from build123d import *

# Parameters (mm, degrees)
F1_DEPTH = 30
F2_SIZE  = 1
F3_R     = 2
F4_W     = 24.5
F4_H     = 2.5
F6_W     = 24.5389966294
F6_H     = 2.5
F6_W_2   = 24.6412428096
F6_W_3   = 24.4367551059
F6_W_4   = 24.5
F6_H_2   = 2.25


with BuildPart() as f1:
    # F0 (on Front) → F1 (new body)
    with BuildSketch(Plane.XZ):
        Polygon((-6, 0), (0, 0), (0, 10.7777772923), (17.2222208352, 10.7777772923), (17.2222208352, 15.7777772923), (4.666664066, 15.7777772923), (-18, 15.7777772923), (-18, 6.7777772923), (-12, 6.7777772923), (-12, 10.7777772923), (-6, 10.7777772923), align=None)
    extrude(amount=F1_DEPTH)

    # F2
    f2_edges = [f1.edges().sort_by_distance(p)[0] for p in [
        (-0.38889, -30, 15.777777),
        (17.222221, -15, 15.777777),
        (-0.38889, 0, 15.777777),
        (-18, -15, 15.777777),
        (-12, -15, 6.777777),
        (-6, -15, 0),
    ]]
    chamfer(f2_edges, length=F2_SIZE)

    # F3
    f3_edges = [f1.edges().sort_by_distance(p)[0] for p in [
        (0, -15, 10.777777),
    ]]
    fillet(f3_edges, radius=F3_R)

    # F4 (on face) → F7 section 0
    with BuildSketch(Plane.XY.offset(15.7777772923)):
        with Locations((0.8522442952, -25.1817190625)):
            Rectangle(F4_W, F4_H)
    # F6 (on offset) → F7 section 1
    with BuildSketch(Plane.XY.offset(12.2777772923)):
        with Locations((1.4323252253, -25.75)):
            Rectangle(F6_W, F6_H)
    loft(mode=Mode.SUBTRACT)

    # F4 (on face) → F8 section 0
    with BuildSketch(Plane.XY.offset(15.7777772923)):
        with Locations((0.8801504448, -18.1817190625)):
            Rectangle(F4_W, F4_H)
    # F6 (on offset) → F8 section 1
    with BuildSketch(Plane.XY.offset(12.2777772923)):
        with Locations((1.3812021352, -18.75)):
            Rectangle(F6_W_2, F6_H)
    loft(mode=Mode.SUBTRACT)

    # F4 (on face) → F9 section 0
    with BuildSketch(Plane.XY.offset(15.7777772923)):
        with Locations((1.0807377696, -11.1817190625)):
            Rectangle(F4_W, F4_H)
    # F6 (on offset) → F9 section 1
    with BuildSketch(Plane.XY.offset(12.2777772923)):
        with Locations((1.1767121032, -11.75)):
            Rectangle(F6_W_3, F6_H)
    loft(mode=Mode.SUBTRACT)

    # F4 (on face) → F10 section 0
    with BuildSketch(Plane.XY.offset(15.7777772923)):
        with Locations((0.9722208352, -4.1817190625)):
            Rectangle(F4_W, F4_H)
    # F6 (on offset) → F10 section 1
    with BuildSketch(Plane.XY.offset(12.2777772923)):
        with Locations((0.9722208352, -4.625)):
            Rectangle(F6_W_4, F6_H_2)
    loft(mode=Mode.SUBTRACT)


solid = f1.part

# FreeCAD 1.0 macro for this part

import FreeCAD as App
import Part
import Sketcher
Q = App.Units.Quantity


def edges_at(feature, points):
    """Names of the edges that pass closest to the given points."""
    edges = feature.Shape.Edges
    near = lambda p: min(range(len(edges)), key=lambda i: edges[i].distToShape(Part.Vertex(*p))[0])
    return sorted({f"Edge{near(p) + 1}" for p in points})

doc = App.newDocument("Part")
body = doc.addObject("PartDesign::Body", "Body")

sketch1 = body.newObject("Sketcher::SketchObject", "Sketch")
sketch1.AttachmentSupport = (doc.getObject("XZ_Plane"), [""])
sketch1.MapMode = "FlatFace"
sketch1.addGeometry(Part.LineSegment(App.Vector(-6, 0, 0), App.Vector(0, 0, 0)), False)
sketch1.addGeometry(Part.LineSegment(App.Vector(0, 0, 0), App.Vector(0, 10.8, 0)), False)
sketch1.addGeometry(Part.LineSegment(App.Vector(0, 10.8, 0), App.Vector(17.2, 10.8, 0)), False)
sketch1.addGeometry(Part.LineSegment(App.Vector(17.2, 10.8, 0), App.Vector(17.2, 15.8, 0)), False)
sketch1.addGeometry(Part.LineSegment(App.Vector(17.2, 15.8, 0), App.Vector(-18, 15.8, 0)), False)
sketch1.addGeometry(Part.LineSegment(App.Vector(-18, 15.8, 0), App.Vector(-18, 6.8, 0)), False)
sketch1.addGeometry(Part.LineSegment(App.Vector(-18, 6.8, 0), App.Vector(-12, 6.8, 0)), False)
sketch1.addGeometry(Part.LineSegment(App.Vector(-12, 6.8, 0), App.Vector(-12, 10.8, 0)), False)
sketch1.addGeometry(Part.LineSegment(App.Vector(-12, 10.8, 0), App.Vector(-6, 10.8, 0)), False)
sketch1.addGeometry(Part.LineSegment(App.Vector(-6, 10.8, 0), App.Vector(-6, 0, 0)), False)
sketch1.addConstraint(Sketcher.Constraint("Coincident", 0, 2, 1, 1))
sketch1.addConstraint(Sketcher.Constraint("Coincident", 1, 2, 2, 1))
sketch1.addConstraint(Sketcher.Constraint("Coincident", 2, 2, 3, 1))
sketch1.addConstraint(Sketcher.Constraint("Coincident", 3, 2, 4, 1))
sketch1.addConstraint(Sketcher.Constraint("Coincident", 4, 2, 5, 1))
sketch1.addConstraint(Sketcher.Constraint("Coincident", 5, 2, 6, 1))
sketch1.addConstraint(Sketcher.Constraint("Coincident", 6, 2, 7, 1))
sketch1.addConstraint(Sketcher.Constraint("Coincident", 7, 2, 8, 1))
sketch1.addConstraint(Sketcher.Constraint("Coincident", 8, 2, 9, 1))
sketch1.addConstraint(Sketcher.Constraint("Coincident", 9, 2, 0, 1))
sketch1.addConstraint(Sketcher.Constraint("Horizontal", 0))
sketch1.addConstraint(Sketcher.Constraint("Vertical", 1))
sketch1.addConstraint(Sketcher.Constraint("Horizontal", 2))
sketch1.addConstraint(Sketcher.Constraint("Vertical", 3))
sketch1.addConstraint(Sketcher.Constraint("Horizontal", 4))
sketch1.addConstraint(Sketcher.Constraint("Vertical", 5))
sketch1.addConstraint(Sketcher.Constraint("Horizontal", 6))
sketch1.addConstraint(Sketcher.Constraint("Vertical", 7))
sketch1.addConstraint(Sketcher.Constraint("Horizontal", 8))
sketch1.addConstraint(Sketcher.Constraint("Vertical", 9))
sketch1.addConstraint(Sketcher.Constraint("Coincident", 0, 2, -1, 1))
sketch1.addConstraint(Sketcher.Constraint("Horizontal", 2, 2, 7, 2))
sketch1.addConstraint(Sketcher.Constraint("Equal", 0, 6))
sketch1.addConstraint(Sketcher.Constraint("Equal", 6, 8))
sketch1.addConstraint(Sketcher.Constraint("DistanceX", 0, 1, 0, 2, Q("6 mm")))
sketch1.addConstraint(Sketcher.Constraint("DistanceY", 3, 1, 3, 2, Q("5 mm")))
sketch1.addConstraint(Sketcher.Constraint("DistanceY", 5, 2, 5, 1, Q("9 mm")))
sketch1.addConstraint(Sketcher.Constraint("DistanceX", 2, 1, 2, 2, Q("17.222221 mm")))
sketch1.addConstraint(Sketcher.Constraint("DistanceY", 1, 1, 1, 2, Q("10.777777 mm")))
pad1 = body.newObject("PartDesign::Pad", "Pad")
pad1.Profile = sketch1
pad1.Length = 30
doc.recompute()

chamfer = body.newObject("PartDesign::Chamfer", "Chamfer")
chamfer.Base = (pad1, edges_at(pad1, [
    (-0.389, -30, 15.778),
    (17.222, -15, 15.778),
    (-0.389, 0, 15.778),
    (-18, -15, 15.778),
    (-12, -15, 6.778),
    (-6, -15, 0),
]))
chamfer.Size = 1
doc.recompute()

fillet = body.newObject("PartDesign::Fillet", "Fillet")
fillet.Base = (chamfer, edges_at(chamfer, [(0, -15, 10.778)]))
fillet.Radius = 2

sketch2 = body.newObject("Sketcher::SketchObject", "Sketch001")
sketch2.AttachmentSupport = (doc.getObject("XY_Plane"), [""])
sketch2.MapMode = "FlatFace"
sketch2.AttachmentOffset = App.Placement(App.Vector(0, 0, 15.777777), App.Rotation())
sketch2.addGeometry(Part.LineSegment(App.Vector(-11.4, -23.9, 0), App.Vector(-11.4, -26.4, 0)), False)
sketch2.addGeometry(Part.LineSegment(App.Vector(-11.4, -26.4, 0), App.Vector(13.1, -26.4, 0)), False)
sketch2.addGeometry(Part.LineSegment(App.Vector(13.1, -26.4, 0), App.Vector(13.1, -23.9, 0)), False)
sketch2.addGeometry(Part.LineSegment(App.Vector(13.1, -23.9, 0), App.Vector(-11.4, -23.9, 0)), False)
sketch2.addConstraint(Sketcher.Constraint("Coincident", 0, 2, 1, 1))
sketch2.addConstraint(Sketcher.Constraint("Coincident", 1, 2, 2, 1))
sketch2.addConstraint(Sketcher.Constraint("Coincident", 2, 2, 3, 1))
sketch2.addConstraint(Sketcher.Constraint("Coincident", 3, 2, 0, 1))
sketch2.addConstraint(Sketcher.Constraint("Vertical", 0))
sketch2.addConstraint(Sketcher.Constraint("Horizontal", 1))
sketch2.addConstraint(Sketcher.Constraint("Vertical", 2))
sketch2.addConstraint(Sketcher.Constraint("Horizontal", 3))
sketch2.addConstraint(Sketcher.Constraint("DistanceX", 1, 1, 1, 2, Q("24.5 mm")))
sketch2.addConstraint(Sketcher.Constraint("DistanceY", 0, 2, 0, 1, Q("2.5 mm")))
sketch2.addConstraint(Sketcher.Constraint("DistanceY", 0, 2, -1, 1, Q("26.431719 mm")))
sketch2.addConstraint(Sketcher.Constraint("DistanceX", 0, 2, -1, 1, Q("11.397756 mm")))

sketch3 = body.newObject("Sketcher::SketchObject", "Sketch002")
sketch3.AttachmentSupport = (doc.getObject("XY_Plane"), [""])
sketch3.MapMode = "FlatFace"
sketch3.AttachmentOffset = App.Placement(App.Vector(0, 0, 12.277777), App.Rotation())
sketch3.addGeometry(Part.LineSegment(App.Vector(-10.8, -24.5, 0), App.Vector(-10.8, -27, 0)), False)
sketch3.addGeometry(Part.LineSegment(App.Vector(-10.8, -27, 0), App.Vector(13.7, -27, 0)), False)
sketch3.addGeometry(Part.LineSegment(App.Vector(13.7, -27, 0), App.Vector(13.7, -24.5, 0)), False)
sketch3.addGeometry(Part.LineSegment(App.Vector(13.7, -24.5, 0), App.Vector(-10.8, -24.5, 0)), False)
sketch3.addConstraint(Sketcher.Constraint("Coincident", 0, 2, 1, 1))
sketch3.addConstraint(Sketcher.Constraint("Coincident", 1, 2, 2, 1))
sketch3.addConstraint(Sketcher.Constraint("Coincident", 2, 2, 3, 1))
sketch3.addConstraint(Sketcher.Constraint("Coincident", 3, 2, 0, 1))
sketch3.addConstraint(Sketcher.Constraint("Vertical", 0))
sketch3.addConstraint(Sketcher.Constraint("Horizontal", 1))
sketch3.addConstraint(Sketcher.Constraint("Vertical", 2))
sketch3.addConstraint(Sketcher.Constraint("Horizontal", 3))
sketch3.addConstraint(Sketcher.Constraint("DistanceY", 0, 2, 0, 1, Q("2.5 mm")))
sketch3.addConstraint(Sketcher.Constraint("DistanceY", 0, 2, -1, 1, Q("27 mm")))
sketch3.addConstraint(Sketcher.Constraint("DistanceX", 1, 1, 1, 2, Q("24.538997 mm")))
sketch3.addConstraint(Sketcher.Constraint("DistanceX", 0, 2, -1, 1, Q("10.837173 mm")))

subtractiveloft = body.newObject("PartDesign::SubtractiveLoft", "SubtractiveLoft")
subtractiveloft.Profile = sketch2
subtractiveloft.Sections = [sketch3]

sketch4 = body.newObject("Sketcher::SketchObject", "Sketch003")
sketch4.AttachmentSupport = (doc.getObject("XY_Plane"), [""])
sketch4.MapMode = "FlatFace"
sketch4.AttachmentOffset = App.Placement(App.Vector(0, 0, 15.777777), App.Rotation())
sketch4.addGeometry(Part.LineSegment(App.Vector(-11.4, -16.9, 0), App.Vector(-11.4, -19.4, 0)), False)
sketch4.addGeometry(Part.LineSegment(App.Vector(-11.4, -19.4, 0), App.Vector(13.1, -19.4, 0)), False)
sketch4.addGeometry(Part.LineSegment(App.Vector(13.1, -19.4, 0), App.Vector(13.1, -16.9, 0)), False)
sketch4.addGeometry(Part.LineSegment(App.Vector(13.1, -16.9, 0), App.Vector(-11.4, -16.9, 0)), False)
sketch4.addConstraint(Sketcher.Constraint("Coincident", 0, 2, 1, 1))
sketch4.addConstraint(Sketcher.Constraint("Coincident", 1, 2, 2, 1))
sketch4.addConstraint(Sketcher.Constraint("Coincident", 2, 2, 3, 1))
sketch4.addConstraint(Sketcher.Constraint("Coincident", 3, 2, 0, 1))
sketch4.addConstraint(Sketcher.Constraint("Vertical", 0))
sketch4.addConstraint(Sketcher.Constraint("Horizontal", 1))
sketch4.addConstraint(Sketcher.Constraint("Vertical", 2))
sketch4.addConstraint(Sketcher.Constraint("Horizontal", 3))
sketch4.addConstraint(Sketcher.Constraint("DistanceX", 1, 1, 1, 2, Q("24.5 mm")))
sketch4.addConstraint(Sketcher.Constraint("DistanceY", 0, 2, 0, 1, Q("2.5 mm")))
sketch4.addConstraint(Sketcher.Constraint("DistanceX", 0, 2, -1, 1, Q("11.36985 mm")))
sketch4.addConstraint(Sketcher.Constraint("DistanceY", 0, 2, -1, 1, Q("19.431719 mm")))

sketch5 = body.newObject("Sketcher::SketchObject", "Sketch004")
sketch5.AttachmentSupport = (doc.getObject("XY_Plane"), [""])
sketch5.MapMode = "FlatFace"
sketch5.AttachmentOffset = App.Placement(App.Vector(0, 0, 12.277777), App.Rotation())
sketch5.addGeometry(Part.LineSegment(App.Vector(-10.9, -17.5, 0), App.Vector(-10.9, -20, 0)), False)
sketch5.addGeometry(Part.LineSegment(App.Vector(-10.9, -20, 0), App.Vector(13.7, -20, 0)), False)
sketch5.addGeometry(Part.LineSegment(App.Vector(13.7, -20, 0), App.Vector(13.7, -17.5, 0)), False)
sketch5.addGeometry(Part.LineSegment(App.Vector(13.7, -17.5, 0), App.Vector(-10.9, -17.5, 0)), False)
sketch5.addConstraint(Sketcher.Constraint("Coincident", 0, 2, 1, 1))
sketch5.addConstraint(Sketcher.Constraint("Coincident", 1, 2, 2, 1))
sketch5.addConstraint(Sketcher.Constraint("Coincident", 2, 2, 3, 1))
sketch5.addConstraint(Sketcher.Constraint("Coincident", 3, 2, 0, 1))
sketch5.addConstraint(Sketcher.Constraint("Vertical", 0))
sketch5.addConstraint(Sketcher.Constraint("Horizontal", 1))
sketch5.addConstraint(Sketcher.Constraint("Vertical", 2))
sketch5.addConstraint(Sketcher.Constraint("Horizontal", 3))
sketch5.addConstraint(Sketcher.Constraint("DistanceY", 0, 2, 0, 1, Q("2.5 mm")))
sketch5.addConstraint(Sketcher.Constraint("DistanceY", 0, 2, -1, 1, Q("20 mm")))
sketch5.addConstraint(Sketcher.Constraint("DistanceX", 1, 1, 1, 2, Q("24.641243 mm")))
sketch5.addConstraint(Sketcher.Constraint("DistanceX", 0, 2, -1, 1, Q("10.939419 mm")))

subtractiveloft2 = body.newObject("PartDesign::SubtractiveLoft", "SubtractiveLoft001")
subtractiveloft2.Profile = sketch4
subtractiveloft2.Sections = [sketch5]

sketch6 = body.newObject("Sketcher::SketchObject", "Sketch005")
sketch6.AttachmentSupport = (doc.getObject("XY_Plane"), [""])
sketch6.MapMode = "FlatFace"
sketch6.AttachmentOffset = App.Placement(App.Vector(0, 0, 15.777777), App.Rotation())
sketch6.addGeometry(Part.LineSegment(App.Vector(-11.2, -9.9, 0), App.Vector(-11.2, -12.4, 0)), False)
sketch6.addGeometry(Part.LineSegment(App.Vector(-11.2, -12.4, 0), App.Vector(13.3, -12.4, 0)), False)
sketch6.addGeometry(Part.LineSegment(App.Vector(13.3, -12.4, 0), App.Vector(13.3, -9.9, 0)), False)
sketch6.addGeometry(Part.LineSegment(App.Vector(13.3, -9.9, 0), App.Vector(-11.2, -9.9, 0)), False)
sketch6.addConstraint(Sketcher.Constraint("Coincident", 0, 2, 1, 1))
sketch6.addConstraint(Sketcher.Constraint("Coincident", 1, 2, 2, 1))
sketch6.addConstraint(Sketcher.Constraint("Coincident", 2, 2, 3, 1))
sketch6.addConstraint(Sketcher.Constraint("Coincident", 3, 2, 0, 1))
sketch6.addConstraint(Sketcher.Constraint("Vertical", 0))
sketch6.addConstraint(Sketcher.Constraint("Horizontal", 1))
sketch6.addConstraint(Sketcher.Constraint("Vertical", 2))
sketch6.addConstraint(Sketcher.Constraint("Horizontal", 3))
sketch6.addConstraint(Sketcher.Constraint("DistanceX", 1, 1, 1, 2, Q("24.5 mm")))
sketch6.addConstraint(Sketcher.Constraint("DistanceY", 0, 2, 0, 1, Q("2.5 mm")))
sketch6.addConstraint(Sketcher.Constraint("DistanceY", 0, 2, -1, 1, Q("12.431719 mm")))
sketch6.addConstraint(Sketcher.Constraint("DistanceX", 0, 2, -1, 1, Q("11.169262 mm")))

sketch7 = body.newObject("Sketcher::SketchObject", "Sketch006")
sketch7.AttachmentSupport = (doc.getObject("XY_Plane"), [""])
sketch7.MapMode = "FlatFace"
sketch7.AttachmentOffset = App.Placement(App.Vector(0, 0, 12.277777), App.Rotation())
sketch7.addGeometry(Part.LineSegment(App.Vector(-11, -10.5, 0), App.Vector(-11, -13, 0)), False)
sketch7.addGeometry(Part.LineSegment(App.Vector(-11, -13, 0), App.Vector(13.4, -13, 0)), False)
sketch7.addGeometry(Part.LineSegment(App.Vector(13.4, -13, 0), App.Vector(13.4, -10.5, 0)), False)
sketch7.addGeometry(Part.LineSegment(App.Vector(13.4, -10.5, 0), App.Vector(-11, -10.5, 0)), False)
sketch7.addConstraint(Sketcher.Constraint("Coincident", 0, 2, 1, 1))
sketch7.addConstraint(Sketcher.Constraint("Coincident", 1, 2, 2, 1))
sketch7.addConstraint(Sketcher.Constraint("Coincident", 2, 2, 3, 1))
sketch7.addConstraint(Sketcher.Constraint("Coincident", 3, 2, 0, 1))
sketch7.addConstraint(Sketcher.Constraint("Vertical", 0))
sketch7.addConstraint(Sketcher.Constraint("Horizontal", 1))
sketch7.addConstraint(Sketcher.Constraint("Vertical", 2))
sketch7.addConstraint(Sketcher.Constraint("Horizontal", 3))
sketch7.addConstraint(Sketcher.Constraint("DistanceY", 0, 2, 0, 1, Q("2.5 mm")))
sketch7.addConstraint(Sketcher.Constraint("DistanceY", 0, 2, -1, 1, Q("13 mm")))
sketch7.addConstraint(Sketcher.Constraint("DistanceX", 1, 1, 1, 2, Q("24.436755 mm")))
sketch7.addConstraint(Sketcher.Constraint("DistanceX", -1, 1, 1, 2, Q("13.39509 mm")))

subtractiveloft3 = body.newObject("PartDesign::SubtractiveLoft", "SubtractiveLoft002")
subtractiveloft3.Profile = sketch6
subtractiveloft3.Sections = [sketch7]

sketch8 = body.newObject("Sketcher::SketchObject", "Sketch007")
sketch8.AttachmentSupport = (doc.getObject("XY_Plane"), [""])
sketch8.MapMode = "FlatFace"
sketch8.AttachmentOffset = App.Placement(App.Vector(0, 0, 15.777777), App.Rotation())
sketch8.addGeometry(Part.LineSegment(App.Vector(-11.3, -2.9, 0), App.Vector(-11.3, -5.4, 0)), False)
sketch8.addGeometry(Part.LineSegment(App.Vector(-11.3, -5.4, 0), App.Vector(13.2, -5.4, 0)), False)
sketch8.addGeometry(Part.LineSegment(App.Vector(13.2, -5.4, 0), App.Vector(13.2, -2.9, 0)), False)
sketch8.addGeometry(Part.LineSegment(App.Vector(13.2, -2.9, 0), App.Vector(-11.3, -2.9, 0)), False)
sketch8.addConstraint(Sketcher.Constraint("Coincident", 0, 2, 1, 1))
sketch8.addConstraint(Sketcher.Constraint("Coincident", 1, 2, 2, 1))
sketch8.addConstraint(Sketcher.Constraint("Coincident", 2, 2, 3, 1))
sketch8.addConstraint(Sketcher.Constraint("Coincident", 3, 2, 0, 1))
sketch8.addConstraint(Sketcher.Constraint("Vertical", 0))
sketch8.addConstraint(Sketcher.Constraint("Horizontal", 1))
sketch8.addConstraint(Sketcher.Constraint("Vertical", 2))
sketch8.addConstraint(Sketcher.Constraint("Horizontal", 3))
sketch8.addConstraint(Sketcher.Constraint("DistanceX", 1, 1, 1, 2, Q("24.5 mm")))
sketch8.addConstraint(Sketcher.Constraint("DistanceY", 0, 2, 0, 1, Q("2.5 mm")))
sketch8.addConstraint(Sketcher.Constraint("DistanceX", 0, 2, -1, 1, Q("11.277779 mm")))
sketch8.addConstraint(Sketcher.Constraint("DistanceY", 0, 2, -1, 1, Q("5.431719 mm")))

sketch9 = body.newObject("Sketcher::SketchObject", "Sketch008")
sketch9.AttachmentSupport = (doc.getObject("XY_Plane"), [""])
sketch9.MapMode = "FlatFace"
sketch9.AttachmentOffset = App.Placement(App.Vector(0, 0, 12.277777), App.Rotation())
sketch9.addGeometry(Part.LineSegment(App.Vector(-11.3, -3.5, 0), App.Vector(-11.3, -5.8, 0)), False)
sketch9.addGeometry(Part.LineSegment(App.Vector(-11.3, -5.8, 0), App.Vector(13.2, -5.8, 0)), False)
sketch9.addGeometry(Part.LineSegment(App.Vector(13.2, -5.8, 0), App.Vector(13.2, -3.5, 0)), False)
sketch9.addGeometry(Part.LineSegment(App.Vector(13.2, -3.5, 0), App.Vector(-11.3, -3.5, 0)), False)
sketch9.addConstraint(Sketcher.Constraint("Coincident", 0, 2, 1, 1))
sketch9.addConstraint(Sketcher.Constraint("Coincident", 1, 2, 2, 1))
sketch9.addConstraint(Sketcher.Constraint("Coincident", 2, 2, 3, 1))
sketch9.addConstraint(Sketcher.Constraint("Coincident", 3, 2, 0, 1))
sketch9.addConstraint(Sketcher.Constraint("Vertical", 0))
sketch9.addConstraint(Sketcher.Constraint("Horizontal", 1))
sketch9.addConstraint(Sketcher.Constraint("Vertical", 2))
sketch9.addConstraint(Sketcher.Constraint("Horizontal", 3))
sketch9.addConstraint(Sketcher.Constraint("DistanceX", 1, 1, 1, 2, Q("24.5 mm")))
sketch9.addConstraint(Sketcher.Constraint("DistanceY", 0, 2, 0, 1, Q("2.25 mm")))
sketch9.addConstraint(Sketcher.Constraint("DistanceY", 2, 2, -1, 1, Q("3.5 mm")))
sketch9.addConstraint(Sketcher.Constraint("DistanceX", 0, 2, -1, 1, Q("11.277779 mm")))

subtractiveloft4 = body.newObject("PartDesign::SubtractiveLoft", "SubtractiveLoft003")
subtractiveloft4.Profile = sketch8
subtractiveloft4.Sections = [sketch9]

doc.recompute()
